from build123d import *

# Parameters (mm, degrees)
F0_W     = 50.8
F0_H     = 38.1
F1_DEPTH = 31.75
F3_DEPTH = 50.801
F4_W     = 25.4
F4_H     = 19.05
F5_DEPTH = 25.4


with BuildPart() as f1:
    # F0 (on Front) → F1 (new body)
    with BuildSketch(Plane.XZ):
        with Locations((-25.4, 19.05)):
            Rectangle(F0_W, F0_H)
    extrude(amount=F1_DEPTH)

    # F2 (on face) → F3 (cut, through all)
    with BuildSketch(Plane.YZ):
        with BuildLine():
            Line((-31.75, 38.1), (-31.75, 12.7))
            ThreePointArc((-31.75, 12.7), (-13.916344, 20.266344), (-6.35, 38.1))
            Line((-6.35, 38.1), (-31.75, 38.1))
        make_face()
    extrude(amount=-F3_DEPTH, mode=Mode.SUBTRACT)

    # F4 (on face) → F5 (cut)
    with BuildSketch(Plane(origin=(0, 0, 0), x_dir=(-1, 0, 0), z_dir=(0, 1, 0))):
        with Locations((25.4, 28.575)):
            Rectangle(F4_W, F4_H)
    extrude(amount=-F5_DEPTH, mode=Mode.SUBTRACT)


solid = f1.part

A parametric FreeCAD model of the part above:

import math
import FreeCAD as App
import Part
import Sketcher
from FreeCAD import Vector
Q = App.Units.Quantity


def add_polygon(sketch, points):
    """Adds a closed chain of lines whose ends are joined by coincident constraints."""
    first, n = sketch.GeometryCount, len(points)
    for a, b in zip(points, points[1:] + points[:1]):
        sketch.addGeometry(Part.LineSegment(App.Vector(*a, 0), App.Vector(*b, 0)), False)
    for i in range(n):
        sketch.addConstraint(Sketcher.Constraint("Coincident", first + i, 2, first + (i + 1) % n, 1))

doc = App.newDocument("Part")
body = doc.addObject("PartDesign::Body", "Body")

sketch1 = body.newObject("Sketcher::SketchObject", "Sketch")
sketch1.AttachmentSupport = (doc.getObject("XZ_Plane"), [""])
sketch1.MapMode = "FlatFace"
add_polygon(sketch1, [(-50.8, 38.1), (-50.8, 0), (0, 0), (0, 38.1)])
sketch1.addConstraint([
    Sketcher.Constraint("Vertical", 0),
    Sketcher.Constraint("Horizontal", 1),
    Sketcher.Constraint("Vertical", 2),
    Sketcher.Constraint("Horizontal", 3),
    Sketcher.Constraint("Coincident", 1, 2, -1, 1),
    Sketcher.Constraint("DistanceX", 1, 1, 1, 2, Q("2 in")),
    Sketcher.Constraint("DistanceY", 0, 2, 0, 1, Q("1.5 in")),
])
pad1 = body.newObject("PartDesign::Pad", "Pad")
pad1.Profile = sketch1
pad1.Length = Q("1.25 in")

sketch2 = body.newObject("Sketcher::SketchObject", "Sketch001")
sketch2.AttachmentSupport = (doc.getObject("YZ_Plane"), [""])
sketch2.MapMode = "FlatFace"
sketch2.addGeometry([
    Part.LineSegment(Vector(-31.75, 38.1, 0), Vector(-31.75, 12.7, 0)),
    Part.ArcOfCircle(Part.Circle(Vector(-32.19225, 38.54225, 0), Vector(0, 0, 1), 25.846033), math.radians(-89.019568), math.radians(-0.980432)),
    Part.LineSegment(Vector(-6.35, 38.1, 0), Vector(-31.75, 38.1, 0)),
], False)
sketch2.addConstraint([
    Sketcher.Constraint("Coincident", 0, 2, 1, 1),
    Sketcher.Constraint("Coincident", 1, 2, 2, 1),
    Sketcher.Constraint("Coincident", 2, 2, 0, 1),
    Sketcher.Constraint("Vertical", 0),
    Sketcher.Constraint("Horizontal", 2),
    Sketcher.Constraint("Equal", 2, 0),
    Sketcher.Constraint("DistanceX", 2, 2, 2, 1, Q("1 in")),
    Sketcher.Constraint("DistanceY", -1, 1, 0, 2, Q("0.5 in")),
    Sketcher.Constraint("DistanceX", 0, 2, -1, 1, Q("1.25 in")),
    Sketcher.Constraint("Radius", 1, Q("25.846033 mm")),
])
pocket1 = body.newObject("PartDesign::Pocket", "Pocket")
pocket1.Profile = sketch2
pocket1.Type = "ThroughAll"

sketch3 = body.newObject("Sketcher::SketchObject", "Sketch002")
sketch3.AttachmentSupport = (doc.getObject("XZ_Plane"), [""])
sketch3.MapMode = "FlatFace"
add_polygon(sketch3, [(-12.7, 38.1), (-12.7, 19.05), (-38.1, 19.05), (-38.1, 38.1)])
sketch3.addConstraint([
    Sketcher.Constraint("Vertical", 0),
    Sketcher.Constraint("Horizontal", 1),
    Sketcher.Constraint("Vertical", 2),
    Sketcher.Constraint("Horizontal", 3),
    Sketcher.Constraint("DistanceX", 1, 2, 1, 1, Q("1 in")),
    Sketcher.Constraint("DistanceY", 0, 2, 0, 1, Q("0.75 in")),
    Sketcher.Constraint("DistanceX", 0, 2, -1, 1, Q("0.5 in")),
    Sketcher.Constraint("DistanceY", -1, 1, 2, 2, Q("1.5 in")),
])
pocket2 = body.newObject("PartDesign::Pocket", "Pocket001")
pocket2.Profile = sketch3
pocket2.Length = Q("1 in")
pocket2.Reversed = True

doc.recompute()
